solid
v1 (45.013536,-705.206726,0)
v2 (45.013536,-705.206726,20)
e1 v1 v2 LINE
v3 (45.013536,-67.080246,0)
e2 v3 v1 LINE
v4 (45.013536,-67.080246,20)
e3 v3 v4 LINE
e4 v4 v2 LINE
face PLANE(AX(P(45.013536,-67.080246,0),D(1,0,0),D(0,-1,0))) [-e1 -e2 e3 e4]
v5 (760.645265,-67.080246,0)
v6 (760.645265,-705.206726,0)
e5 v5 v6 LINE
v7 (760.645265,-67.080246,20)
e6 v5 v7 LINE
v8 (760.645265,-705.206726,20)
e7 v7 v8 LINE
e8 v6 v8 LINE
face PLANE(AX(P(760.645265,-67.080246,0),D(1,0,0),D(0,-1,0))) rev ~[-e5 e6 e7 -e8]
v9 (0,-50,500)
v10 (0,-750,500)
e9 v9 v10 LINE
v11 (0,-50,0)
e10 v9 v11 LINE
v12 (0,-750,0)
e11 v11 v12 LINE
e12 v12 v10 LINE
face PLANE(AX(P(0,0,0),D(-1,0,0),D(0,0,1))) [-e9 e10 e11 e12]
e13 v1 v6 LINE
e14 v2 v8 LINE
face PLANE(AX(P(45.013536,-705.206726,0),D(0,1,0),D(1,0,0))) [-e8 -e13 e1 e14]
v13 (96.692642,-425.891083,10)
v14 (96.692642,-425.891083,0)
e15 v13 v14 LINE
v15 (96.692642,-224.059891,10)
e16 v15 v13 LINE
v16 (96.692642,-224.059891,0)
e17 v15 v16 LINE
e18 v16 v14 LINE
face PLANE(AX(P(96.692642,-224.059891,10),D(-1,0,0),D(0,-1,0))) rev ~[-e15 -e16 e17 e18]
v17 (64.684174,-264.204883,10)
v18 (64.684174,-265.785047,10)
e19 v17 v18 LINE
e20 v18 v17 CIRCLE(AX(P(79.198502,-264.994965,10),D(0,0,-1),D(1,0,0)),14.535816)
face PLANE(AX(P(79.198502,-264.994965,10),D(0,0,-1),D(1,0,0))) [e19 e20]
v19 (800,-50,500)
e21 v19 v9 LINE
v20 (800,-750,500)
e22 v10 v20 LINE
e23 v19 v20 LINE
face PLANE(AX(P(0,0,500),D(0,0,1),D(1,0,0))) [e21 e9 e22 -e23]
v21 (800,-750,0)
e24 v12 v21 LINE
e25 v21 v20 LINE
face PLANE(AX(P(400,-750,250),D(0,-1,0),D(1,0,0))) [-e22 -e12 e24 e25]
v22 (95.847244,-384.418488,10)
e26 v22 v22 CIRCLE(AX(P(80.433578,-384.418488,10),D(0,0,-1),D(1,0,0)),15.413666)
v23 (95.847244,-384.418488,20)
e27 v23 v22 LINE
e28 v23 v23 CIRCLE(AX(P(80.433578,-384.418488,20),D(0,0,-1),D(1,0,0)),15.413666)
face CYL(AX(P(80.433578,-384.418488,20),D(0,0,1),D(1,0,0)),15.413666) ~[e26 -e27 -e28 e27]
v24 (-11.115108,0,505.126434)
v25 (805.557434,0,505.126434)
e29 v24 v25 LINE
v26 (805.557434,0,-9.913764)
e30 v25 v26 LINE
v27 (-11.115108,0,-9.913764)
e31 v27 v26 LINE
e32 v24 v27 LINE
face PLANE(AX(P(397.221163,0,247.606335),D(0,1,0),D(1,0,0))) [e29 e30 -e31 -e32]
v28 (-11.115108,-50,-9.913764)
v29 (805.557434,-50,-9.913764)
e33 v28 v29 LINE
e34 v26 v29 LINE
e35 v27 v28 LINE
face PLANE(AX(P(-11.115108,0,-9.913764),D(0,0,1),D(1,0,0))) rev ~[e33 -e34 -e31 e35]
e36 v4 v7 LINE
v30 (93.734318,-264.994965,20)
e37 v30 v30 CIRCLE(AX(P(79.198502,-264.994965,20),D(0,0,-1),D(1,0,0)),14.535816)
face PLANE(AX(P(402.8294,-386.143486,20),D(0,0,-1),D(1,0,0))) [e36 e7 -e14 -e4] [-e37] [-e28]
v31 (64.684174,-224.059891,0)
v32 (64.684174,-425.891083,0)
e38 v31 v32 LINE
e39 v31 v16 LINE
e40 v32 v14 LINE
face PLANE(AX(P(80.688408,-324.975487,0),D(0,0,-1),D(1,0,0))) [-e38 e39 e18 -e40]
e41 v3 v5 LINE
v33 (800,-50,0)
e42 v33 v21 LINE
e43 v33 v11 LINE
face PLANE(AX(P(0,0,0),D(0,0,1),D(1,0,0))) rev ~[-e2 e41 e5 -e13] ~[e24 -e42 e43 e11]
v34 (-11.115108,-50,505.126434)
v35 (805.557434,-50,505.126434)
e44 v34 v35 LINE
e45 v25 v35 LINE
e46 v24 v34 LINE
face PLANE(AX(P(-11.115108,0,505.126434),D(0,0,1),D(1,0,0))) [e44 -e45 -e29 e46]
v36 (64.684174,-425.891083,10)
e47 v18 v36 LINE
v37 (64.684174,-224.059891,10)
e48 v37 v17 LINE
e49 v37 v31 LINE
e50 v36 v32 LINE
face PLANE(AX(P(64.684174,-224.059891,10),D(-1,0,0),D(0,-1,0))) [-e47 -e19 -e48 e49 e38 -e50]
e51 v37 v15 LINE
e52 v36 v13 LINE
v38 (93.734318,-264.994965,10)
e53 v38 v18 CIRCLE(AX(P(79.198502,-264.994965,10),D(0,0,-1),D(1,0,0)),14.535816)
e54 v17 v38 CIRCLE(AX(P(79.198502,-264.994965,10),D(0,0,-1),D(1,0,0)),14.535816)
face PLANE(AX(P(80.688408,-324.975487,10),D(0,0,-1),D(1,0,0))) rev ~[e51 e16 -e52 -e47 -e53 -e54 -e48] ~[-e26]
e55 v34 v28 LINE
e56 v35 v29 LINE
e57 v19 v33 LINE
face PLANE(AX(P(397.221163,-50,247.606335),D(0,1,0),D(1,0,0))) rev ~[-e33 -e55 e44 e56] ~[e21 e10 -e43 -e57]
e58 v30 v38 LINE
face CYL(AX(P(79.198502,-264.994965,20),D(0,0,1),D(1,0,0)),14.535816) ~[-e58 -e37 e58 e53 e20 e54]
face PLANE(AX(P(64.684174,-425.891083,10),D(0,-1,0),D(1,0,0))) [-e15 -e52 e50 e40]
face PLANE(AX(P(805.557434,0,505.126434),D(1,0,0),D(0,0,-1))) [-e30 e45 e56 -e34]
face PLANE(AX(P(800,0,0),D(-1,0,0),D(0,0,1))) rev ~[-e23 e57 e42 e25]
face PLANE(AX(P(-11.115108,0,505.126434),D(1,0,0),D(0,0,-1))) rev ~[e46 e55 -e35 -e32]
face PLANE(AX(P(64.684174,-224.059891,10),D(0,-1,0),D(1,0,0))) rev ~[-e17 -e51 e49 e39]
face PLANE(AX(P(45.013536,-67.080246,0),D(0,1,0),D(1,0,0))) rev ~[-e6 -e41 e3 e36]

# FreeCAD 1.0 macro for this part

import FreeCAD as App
import Part
import Sketcher

doc = App.newDocument("Part")
body = doc.addObject("PartDesign::Body", "Body")

# Sketch on XZ plane
sketch1 = body.newObject("Sketcher::SketchObject", "Sketch")
sketch1.AttachmentSupport = (doc.getObject("XZ_Plane"), [""])
sketch1.MapMode = "FlatFace"
sketch1.addGeometry([
    Part.LineSegment(App.Vector(0, 500, 0), App.Vector(0, 0, 0)),
    Part.LineSegment(App.Vector(0, 0, 0), App.Vector(800, 0, 0)),
    Part.LineSegment(App.Vector(800, 0, 0), App.Vector(800, 500, 0)),
    Part.LineSegment(App.Vector(800, 500, 0), App.Vector(0, 500, 0)),
], False)
sketch1.addConstraint([
    Sketcher.Constraint("Coincident", 0, 2, 1, 1),
    Sketcher.Constraint("Coincident", 1, 2, 2, 1),
    Sketcher.Constraint("Coincident", 2, 2, 3, 1),
    Sketcher.Constraint("Coincident", 3, 2, 0, 1),
    Sketcher.Constraint("Vertical", 0),
    Sketcher.Constraint("Horizontal", 1),
    Sketcher.Constraint("Vertical", 2),
    Sketcher.Constraint("Horizontal", 3),
    Sketcher.Constraint("Coincident", 0, 2, -1, 1),
    Sketcher.Constraint("DistanceX", 1, 1, 1, 2, 800.0),
    Sketcher.Constraint("DistanceY", 0, 2, 0, 1, 500.0),
])
pad1 = body.newObject("PartDesign::Pad", "Pad")
pad1.Profile = sketch1
pad1.Length = 750

# Sketch on XZ plane
sketch2 = body.newObject("Sketcher::SketchObject", "Sketch001")
sketch2.AttachmentSupport = (doc.getObject("XZ_Plane"), [""])
sketch2.MapMode = "FlatFace"
sketch2.addGeometry([
    Part.LineSegment(App.Vector(-11, -10, 0), App.Vector(-11, 505, 0)),
    Part.LineSegment(App.Vector(-11, 505, 0), App.Vector(806, 505, 0)),
    Part.LineSegment(App.Vector(806, 505, 0), App.Vector(806, -10, 0)),
    Part.LineSegment(App.Vector(806, -10, 0), App.Vector(-11, -10, 0)),
], False)
sketch2.addConstraint([
    Sketcher.Constraint("Coincident", 0, 2, 1, 1),
    Sketcher.Constraint("Coincident", 1, 2, 2, 1),
    Sketcher.Constraint("Coincident", 2, 2, 3, 1),
    Sketcher.Constraint("Coincident", 3, 2, 0, 1),
    Sketcher.Constraint("Vertical", 0),
    Sketcher.Constraint("Horizontal", 1),
    Sketcher.Constraint("Vertical", 2),
    Sketcher.Constraint("Horizontal", 3),
    Sketcher.Constraint("DistanceY", 0, 1, 0, 2, 515.040198),
    Sketcher.Constraint("DistanceX", 1, 1, 1, 2, 816.672542),
    Sketcher.Constraint("DistanceX", 0, 2, -1, 1, 11.115108),
    Sketcher.Constraint("DistanceY", -1, 1, 0, 2, 505.126434),
])
pad2 = body.newObject("PartDesign::Pad", "Pad001")
pad2.Profile = sketch2
pad2.Length = 50

# Sketch on XY plane
sketch3 = body.newObject("Sketcher::SketchObject", "Sketch002")
sketch3.AttachmentSupport = (doc.getObject("XY_Plane"), [""])
sketch3.MapMode = "FlatFace"
sketch3.addGeometry([
    Part.LineSegment(App.Vector(45, -705, 0), App.Vector(45, -67, 0)),
    Part.LineSegment(App.Vector(45, -67, 0), App.Vector(761, -67, 0)),
    Part.LineSegment(App.Vector(761, -67, 0), App.Vector(761, -705, 0)),
    Part.LineSegment(App.Vector(761, -705, 0), App.Vector(45, -705, 0)),
], False)
sketch3.addConstraint([
    Sketcher.Constraint("Coincident", 0, 2, 1, 1),
    Sketcher.Constraint("Coincident", 1, 2, 2, 1),
    Sketcher.Constraint("Coincident", 2, 2, 3, 1),
    Sketcher.Constraint("Coincident", 3, 2, 0, 1),
    Sketcher.Constraint("Vertical", 0),
    Sketcher.Constraint("Horizontal", 1),
    Sketcher.Constraint("Vertical", 2),
    Sketcher.Constraint("Horizontal", 3),
    Sketcher.Constraint("DistanceX", 1, 1, 1, 2, 715.631729),
    Sketcher.Constraint("DistanceY", 0, 1, 0, 2, 638.12648),
    Sketcher.Constraint("DistanceX", -1, 1, 0, 2, 45.013536),
    Sketcher.Constraint("DistanceY", 0, 2, -1, 1, 67.080246),
])
pocket1 = body.newObject("PartDesign::Pocket", "Pocket")
pocket1.Profile = sketch3
pocket1.Length = 20
pocket1.Reversed = True

# Sketch on XY plane
sketch4 = body.newObject("Sketcher::SketchObject", "Sketch003")
sketch4.AttachmentSupport = (doc.getObject("XY_Plane"), [""])
sketch4.MapMode = "FlatFace"
sketch4.AttachmentOffset = App.Placement(App.Vector(0, 0, 20), App.Rotation())
sketch4.addGeometry([
    Part.Circle(App.Vector(80, -384, 0), App.Vector(0, 0, 1), 15),
    Part.Circle(App.Vector(79, -265, 0), App.Vector(0, 0, 1), 15),
], False)
sketch4.addConstraint([
    Sketcher.Constraint("Diameter", 0, 30.827332),
    Sketcher.Constraint("Diameter", 1, 29.071632),
    Sketcher.Constraint("DistanceY", 0, 3, -1, 1, 384.418488),
    Sketcher.Constraint("DistanceX", -1, 1, 0, 3, 80.433578),
    Sketcher.Constraint("DistanceX", -1, 1, 1, 3, 79.198502),
    Sketcher.Constraint("DistanceY", 1, 3, -1, 1, 264.994965),
])
pad3 = body.newObject("PartDesign::Pad", "Pad002")
pad3.Profile = sketch4
pad3.Length = 10
pad3.Reversed = True

# Sketch on XY plane
sketch5 = body.newObject("Sketcher::SketchObject", "Sketch004")
sketch5.AttachmentSupport = (doc.getObject("XY_Plane"), [""])
sketch5.MapMode = "FlatFace"
sketch5.AttachmentOffset = App.Placement(App.Vector(0, 0, 10), App.Rotation())
sketch5.addGeometry([
    Part.LineSegment(App.Vector(65, -426, 0), App.Vector(65, -224, 0)),
    Part.LineSegment(App.Vector(65, -224, 0), App.Vector(97, -224, 0)),
    Part.LineSegment(App.Vector(97, -224, 0), App.Vector(97, -426, 0)),
    Part.LineSegment(App.Vector(97, -426, 0), App.Vector(65, -426, 0)),
], False)
sketch5.addConstraint([
    Sketcher.Constraint("Coincident", 0, 2, 1, 1),
    Sketcher.Constraint("Coincident", 1, 2, 2, 1),
    Sketcher.Constraint("Coincident", 2, 2, 3, 1),
    Sketcher.Constraint("Coincident", 3, 2, 0, 1),
    Sketcher.Constraint("Vertical", 0),
    Sketcher.Constraint("Horizontal", 1),
    Sketcher.Constraint("Vertical", 2),
    Sketcher.Constraint("Horizontal", 3),
    Sketcher.Constraint("DistanceX", 1, 1, 1, 2, 32.008468),
    Sketcher.Constraint("DistanceY", 0, 1, 0, 2, 201.831192),
    Sketcher.Constraint("DistanceY", 0, 2, -1, 1, 224.059891),
    Sketcher.Constraint("DistanceX", -1, 1, 0, 2, 64.684174),
])
pad4 = body.newObject("PartDesign::Pad", "Pad003")
pad4.Profile = sketch5
pad4.Length = 10
pad4.Reversed = True

doc.recompute()
